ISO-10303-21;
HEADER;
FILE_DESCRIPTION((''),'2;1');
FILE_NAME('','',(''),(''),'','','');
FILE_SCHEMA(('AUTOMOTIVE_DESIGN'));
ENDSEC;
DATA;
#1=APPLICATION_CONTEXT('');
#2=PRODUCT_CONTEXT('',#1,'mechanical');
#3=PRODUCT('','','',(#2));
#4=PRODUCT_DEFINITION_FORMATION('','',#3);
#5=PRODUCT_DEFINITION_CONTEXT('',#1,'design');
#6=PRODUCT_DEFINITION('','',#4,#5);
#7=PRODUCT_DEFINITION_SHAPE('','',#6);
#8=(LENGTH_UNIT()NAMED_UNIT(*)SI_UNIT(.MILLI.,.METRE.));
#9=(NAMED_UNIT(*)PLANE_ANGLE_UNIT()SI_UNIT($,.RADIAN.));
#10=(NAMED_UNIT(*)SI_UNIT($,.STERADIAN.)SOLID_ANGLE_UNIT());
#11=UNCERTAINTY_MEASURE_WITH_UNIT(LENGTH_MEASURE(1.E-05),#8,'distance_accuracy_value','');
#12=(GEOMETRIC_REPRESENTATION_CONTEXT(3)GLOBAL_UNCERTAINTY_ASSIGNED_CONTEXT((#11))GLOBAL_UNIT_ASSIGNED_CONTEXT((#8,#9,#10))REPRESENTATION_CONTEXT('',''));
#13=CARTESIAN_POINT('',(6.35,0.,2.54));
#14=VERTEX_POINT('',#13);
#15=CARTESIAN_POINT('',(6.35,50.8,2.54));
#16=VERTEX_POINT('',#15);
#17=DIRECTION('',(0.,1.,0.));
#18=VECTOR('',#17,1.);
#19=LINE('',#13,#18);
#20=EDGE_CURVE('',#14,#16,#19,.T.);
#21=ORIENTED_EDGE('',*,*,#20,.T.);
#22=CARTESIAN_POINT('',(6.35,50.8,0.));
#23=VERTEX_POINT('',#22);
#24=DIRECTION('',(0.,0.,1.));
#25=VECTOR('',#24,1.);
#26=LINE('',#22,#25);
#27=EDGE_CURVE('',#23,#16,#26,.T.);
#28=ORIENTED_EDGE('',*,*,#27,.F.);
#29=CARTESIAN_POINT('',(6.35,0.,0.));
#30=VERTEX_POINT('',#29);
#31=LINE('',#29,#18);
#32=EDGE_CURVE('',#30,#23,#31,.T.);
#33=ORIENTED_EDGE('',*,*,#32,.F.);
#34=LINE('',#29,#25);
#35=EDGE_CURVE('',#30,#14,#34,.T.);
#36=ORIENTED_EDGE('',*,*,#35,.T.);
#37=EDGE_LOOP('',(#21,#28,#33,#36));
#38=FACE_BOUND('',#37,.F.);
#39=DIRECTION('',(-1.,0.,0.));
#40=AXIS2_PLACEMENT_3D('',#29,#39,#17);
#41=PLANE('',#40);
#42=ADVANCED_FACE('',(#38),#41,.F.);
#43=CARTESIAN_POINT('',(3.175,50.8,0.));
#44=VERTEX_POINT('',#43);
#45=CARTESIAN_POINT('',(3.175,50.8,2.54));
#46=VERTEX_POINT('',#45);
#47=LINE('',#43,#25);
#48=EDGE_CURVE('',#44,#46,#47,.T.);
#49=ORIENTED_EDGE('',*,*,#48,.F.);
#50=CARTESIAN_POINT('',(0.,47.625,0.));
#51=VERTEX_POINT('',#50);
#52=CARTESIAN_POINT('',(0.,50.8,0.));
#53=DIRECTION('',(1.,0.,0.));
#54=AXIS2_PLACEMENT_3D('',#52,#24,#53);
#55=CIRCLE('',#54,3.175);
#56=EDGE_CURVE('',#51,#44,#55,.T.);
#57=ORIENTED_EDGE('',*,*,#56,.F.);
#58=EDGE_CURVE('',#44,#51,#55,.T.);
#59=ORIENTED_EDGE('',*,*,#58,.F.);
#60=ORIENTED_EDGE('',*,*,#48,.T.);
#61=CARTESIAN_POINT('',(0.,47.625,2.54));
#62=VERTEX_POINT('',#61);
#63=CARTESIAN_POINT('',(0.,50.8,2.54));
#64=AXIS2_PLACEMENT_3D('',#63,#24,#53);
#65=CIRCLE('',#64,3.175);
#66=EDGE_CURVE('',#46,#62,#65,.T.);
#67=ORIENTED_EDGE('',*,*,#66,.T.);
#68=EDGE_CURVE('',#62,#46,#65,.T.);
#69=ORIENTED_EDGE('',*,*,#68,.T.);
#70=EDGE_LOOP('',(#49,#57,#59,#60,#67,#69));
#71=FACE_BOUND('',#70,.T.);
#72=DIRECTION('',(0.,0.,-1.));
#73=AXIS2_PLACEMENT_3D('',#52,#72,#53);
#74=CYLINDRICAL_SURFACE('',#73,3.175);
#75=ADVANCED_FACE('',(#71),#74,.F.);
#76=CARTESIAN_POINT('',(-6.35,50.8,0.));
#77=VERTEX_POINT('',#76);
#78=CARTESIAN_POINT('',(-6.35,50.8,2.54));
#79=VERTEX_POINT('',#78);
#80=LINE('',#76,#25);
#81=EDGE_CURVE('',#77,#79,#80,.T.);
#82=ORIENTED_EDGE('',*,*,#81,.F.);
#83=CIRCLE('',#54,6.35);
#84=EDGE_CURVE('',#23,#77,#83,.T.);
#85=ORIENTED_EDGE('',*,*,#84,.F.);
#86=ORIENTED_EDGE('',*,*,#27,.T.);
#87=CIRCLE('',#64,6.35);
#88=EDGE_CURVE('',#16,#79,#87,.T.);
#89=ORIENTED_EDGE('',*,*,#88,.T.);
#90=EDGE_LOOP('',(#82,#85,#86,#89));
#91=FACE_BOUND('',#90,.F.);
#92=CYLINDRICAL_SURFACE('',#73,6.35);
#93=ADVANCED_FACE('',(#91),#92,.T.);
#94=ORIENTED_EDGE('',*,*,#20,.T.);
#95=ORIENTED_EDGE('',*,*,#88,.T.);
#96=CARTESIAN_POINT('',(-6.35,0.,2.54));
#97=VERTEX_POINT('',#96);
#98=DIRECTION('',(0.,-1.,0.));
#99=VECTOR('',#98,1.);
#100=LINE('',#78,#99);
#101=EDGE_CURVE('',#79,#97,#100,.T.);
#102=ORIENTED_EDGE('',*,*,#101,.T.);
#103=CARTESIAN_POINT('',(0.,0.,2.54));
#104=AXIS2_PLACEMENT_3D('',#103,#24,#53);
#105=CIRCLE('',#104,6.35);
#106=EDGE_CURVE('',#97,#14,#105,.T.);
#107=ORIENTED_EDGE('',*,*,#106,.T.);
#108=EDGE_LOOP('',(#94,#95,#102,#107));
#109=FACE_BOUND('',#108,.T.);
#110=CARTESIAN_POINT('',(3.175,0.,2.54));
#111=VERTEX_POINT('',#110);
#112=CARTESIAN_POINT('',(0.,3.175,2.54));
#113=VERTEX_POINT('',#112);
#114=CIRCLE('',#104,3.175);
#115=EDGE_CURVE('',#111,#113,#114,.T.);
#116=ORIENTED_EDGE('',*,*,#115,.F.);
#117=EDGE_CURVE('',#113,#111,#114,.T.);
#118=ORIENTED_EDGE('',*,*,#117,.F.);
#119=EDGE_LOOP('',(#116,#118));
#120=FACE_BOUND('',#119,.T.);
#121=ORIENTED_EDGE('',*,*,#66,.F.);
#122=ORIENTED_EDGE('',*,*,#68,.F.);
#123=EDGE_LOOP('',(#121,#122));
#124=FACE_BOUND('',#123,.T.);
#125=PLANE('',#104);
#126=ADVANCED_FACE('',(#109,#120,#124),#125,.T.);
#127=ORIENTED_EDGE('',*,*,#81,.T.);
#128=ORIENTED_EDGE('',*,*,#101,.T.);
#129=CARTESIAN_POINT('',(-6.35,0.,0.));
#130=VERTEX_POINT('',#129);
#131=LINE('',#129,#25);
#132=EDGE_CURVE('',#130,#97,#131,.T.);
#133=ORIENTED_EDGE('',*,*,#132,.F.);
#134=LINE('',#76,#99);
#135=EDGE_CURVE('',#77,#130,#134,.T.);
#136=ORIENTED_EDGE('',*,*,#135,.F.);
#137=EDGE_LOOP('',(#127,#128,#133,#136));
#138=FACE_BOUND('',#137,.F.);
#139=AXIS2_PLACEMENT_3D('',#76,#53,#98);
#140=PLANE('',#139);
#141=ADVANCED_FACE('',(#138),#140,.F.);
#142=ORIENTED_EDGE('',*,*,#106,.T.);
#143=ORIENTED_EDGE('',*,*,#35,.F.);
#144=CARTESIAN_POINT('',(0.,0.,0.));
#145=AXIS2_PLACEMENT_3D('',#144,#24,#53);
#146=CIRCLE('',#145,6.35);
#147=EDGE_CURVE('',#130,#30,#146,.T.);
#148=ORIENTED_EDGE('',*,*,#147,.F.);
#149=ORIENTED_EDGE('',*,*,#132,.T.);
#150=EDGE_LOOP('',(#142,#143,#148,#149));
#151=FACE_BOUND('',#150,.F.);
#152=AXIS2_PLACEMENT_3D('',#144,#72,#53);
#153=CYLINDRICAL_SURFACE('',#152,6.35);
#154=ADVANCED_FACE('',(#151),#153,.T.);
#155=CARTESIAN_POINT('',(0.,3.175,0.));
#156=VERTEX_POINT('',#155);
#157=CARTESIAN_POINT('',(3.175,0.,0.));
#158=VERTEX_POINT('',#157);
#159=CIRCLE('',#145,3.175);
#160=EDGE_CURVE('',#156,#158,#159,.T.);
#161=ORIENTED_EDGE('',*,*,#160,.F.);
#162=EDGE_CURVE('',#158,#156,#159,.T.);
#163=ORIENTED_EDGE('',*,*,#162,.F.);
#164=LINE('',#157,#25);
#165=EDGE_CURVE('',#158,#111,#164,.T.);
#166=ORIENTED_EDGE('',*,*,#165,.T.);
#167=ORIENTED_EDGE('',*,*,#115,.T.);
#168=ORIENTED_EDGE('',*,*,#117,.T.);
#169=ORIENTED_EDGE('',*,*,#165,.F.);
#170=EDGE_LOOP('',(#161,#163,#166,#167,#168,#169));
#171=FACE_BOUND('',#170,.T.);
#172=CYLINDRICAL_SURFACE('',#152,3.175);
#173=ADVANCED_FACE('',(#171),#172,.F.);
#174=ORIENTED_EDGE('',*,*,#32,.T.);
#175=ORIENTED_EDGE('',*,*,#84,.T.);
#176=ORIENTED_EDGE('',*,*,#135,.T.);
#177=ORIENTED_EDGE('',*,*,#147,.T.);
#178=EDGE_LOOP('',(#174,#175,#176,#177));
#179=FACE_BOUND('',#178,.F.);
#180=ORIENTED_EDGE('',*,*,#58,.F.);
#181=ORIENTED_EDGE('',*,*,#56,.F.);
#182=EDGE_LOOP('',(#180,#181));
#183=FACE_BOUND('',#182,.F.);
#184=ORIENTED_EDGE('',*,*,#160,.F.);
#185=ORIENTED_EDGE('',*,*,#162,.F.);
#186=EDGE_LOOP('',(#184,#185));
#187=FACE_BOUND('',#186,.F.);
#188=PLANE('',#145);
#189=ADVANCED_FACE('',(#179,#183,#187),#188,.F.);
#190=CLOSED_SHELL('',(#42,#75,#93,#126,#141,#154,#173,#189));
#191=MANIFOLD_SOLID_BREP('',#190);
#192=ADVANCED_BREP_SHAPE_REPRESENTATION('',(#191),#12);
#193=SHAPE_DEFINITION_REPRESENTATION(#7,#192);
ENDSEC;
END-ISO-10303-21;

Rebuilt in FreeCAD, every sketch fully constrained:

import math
import FreeCAD as App
import Part
import Sketcher

V = App.Vector
Q = App.Units.Quantity

doc = App.newDocument("Part")
body = doc.addObject("PartDesign::Body", "Body")

sketch1 = body.newObject("Sketcher::SketchObject", "Sketch")
sketch1.AttachmentSupport = (doc.getObject("XY_Plane"), [""])
sketch1.MapMode = "FlatFace"
sketch1.addGeometry(Part.ArcOfCircle(Part.Circle(V(0, 0, 0), V(0, 0, 1), 6.3), math.radians(180), math.radians(360)), False)
sketch1.addGeometry(Part.LineSegment(V(6.3, 0, 0), V(6.3, 50.8, 0)), False)
sketch1.addGeometry(Part.ArcOfCircle(Part.Circle(V(0, 50.8, 0), V(0, 0, 1), 6.3), math.radians(0), math.radians(180)), False)
sketch1.addGeometry(Part.LineSegment(V(-6.3, 50.8, 0), V(-6.3, 0, 0)), False)
sketch1.addGeometry(Part.Circle(V(0, 0, 0), V(0, 0, 1), 3.2), False)
sketch1.addGeometry(Part.Circle(V(0, 50.8, 0), V(0, 0, 1), 3.2), False)
sketch1.addConstraint(Sketcher.Constraint("Tangent", 0, 2, 1, 1))
sketch1.addConstraint(Sketcher.Constraint("Tangent", 1, 2, 2, 1))
sketch1.addConstraint(Sketcher.Constraint("Tangent", 2, 2, 3, 1))
sketch1.addConstraint(Sketcher.Constraint("Tangent", 3, 2, 0, 1))
sketch1.addConstraint(Sketcher.Constraint("Vertical", 1))
sketch1.addConstraint(Sketcher.Constraint("Vertical", 3))
sketch1.addConstraint(Sketcher.Constraint("Coincident", 0, 3, -1, 1))
sketch1.addConstraint(Sketcher.Constraint("Coincident", 4, 3, -1, 1))
sketch1.addConstraint(Sketcher.Constraint("Coincident", 5, 3, 2, 3))
sketch1.addConstraint(Sketcher.Constraint("Equal", 4, 5))
sketch1.addConstraint(Sketcher.Constraint("Diameter", 4, Q("0.25 in")))
sketch1.addConstraint(Sketcher.Constraint("DistanceY", 1, 1, 1, 2, Q("2 in")))
sketch1.addConstraint(Sketcher.Constraint("Radius", 0, Q("0.25 in")))
pad1 = body.newObject("PartDesign::Pad", "Pad")
pad1.Profile = sketch1
pad1.Length = Q("0.1 in")

doc.recompute()
